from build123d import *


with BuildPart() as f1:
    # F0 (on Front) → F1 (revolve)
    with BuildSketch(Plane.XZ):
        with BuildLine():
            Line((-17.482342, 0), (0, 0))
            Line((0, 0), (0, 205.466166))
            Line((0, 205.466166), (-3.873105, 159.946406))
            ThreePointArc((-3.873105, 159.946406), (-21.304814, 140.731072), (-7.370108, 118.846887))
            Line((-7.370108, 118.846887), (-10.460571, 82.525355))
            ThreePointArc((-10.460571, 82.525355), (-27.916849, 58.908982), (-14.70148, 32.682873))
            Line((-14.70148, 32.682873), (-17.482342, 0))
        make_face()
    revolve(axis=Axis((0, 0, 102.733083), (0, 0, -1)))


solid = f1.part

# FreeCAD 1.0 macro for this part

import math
import FreeCAD as App
import Part
import Sketcher

V = App.Vector

doc = App.newDocument("Part")
body = doc.addObject("PartDesign::Body", "Body")

sketch1 = body.newObject("Sketcher::SketchObject", "Sketch")
sketch1.AttachmentSupport = (doc.getObject("XZ_Plane"), [""])
sketch1.MapMode = "FlatFace"
sketch1.addGeometry([
    Part.LineSegment(V(-17, 0, 0), V(0, 0, 0)),
    Part.LineSegment(V(0, 0, 0), V(0, 205, 0)),
    Part.LineSegment(V(0, 205, 0), V(-4, 160, 0)),
    Part.ArcOfCircle(Part.Circle(V(0, 139, 0), V(0, 0, 1), 21), math.radians(100), math.radians(250)),
    Part.LineSegment(V(-7, 119, 0), V(-10, 83, 0)),
    Part.ArcOfCircle(Part.Circle(V(0, 57, 0), V(0, 0, 1), 28), math.radians(112), math.radians(238)),
    Part.LineSegment(V(-15, 33, 0), V(-17, 0, 0)),
], False)
sketch1.addConstraint([
    Sketcher.Constraint("Coincident", 0, 2, 1, 1),
    Sketcher.Constraint("Coincident", 1, 2, 2, 1),
    Sketcher.Constraint("Coincident", 2, 2, 3, 1),
    Sketcher.Constraint("Coincident", 3, 2, 4, 1),
    Sketcher.Constraint("Coincident", 4, 2, 5, 1),
    Sketcher.Constraint("Coincident", 5, 2, 6, 1),
    Sketcher.Constraint("Coincident", 6, 2, 0, 1),
    Sketcher.Constraint("Horizontal", 0),
    Sketcher.Constraint("Vertical", 1),
    Sketcher.Constraint("Coincident", 0, 2, -1, 1),
    Sketcher.Constraint("PointOnObject", 3, 3, -2),
    Sketcher.Constraint("PointOnObject", 5, 3, -2),
    Sketcher.Constraint("Parallel", 2, 4),
    Sketcher.Constraint("Parallel", 4, 6),
    Sketcher.Constraint("Radius", 5, 28.017721),
    Sketcher.Constraint("Radius", 3, 21.381794),
    Sketcher.Constraint("DistanceX", 0, 1, 0, 2, 17.482342),
    Sketcher.Constraint("DistanceY", 1, 1, 1, 2, 205.466166),
    Sketcher.Constraint("DistanceY", -1, 1, 5, 3, 56.533642),
    Sketcher.Constraint("DistanceX", 3, 2, -1, 1, 7.370108),
    Sketcher.Constraint("DistanceX", 4, 2, -1, 1, 10.460571),
    Sketcher.Constraint("DistanceY", 3, 3, 1, 2, 66.547841),
])
revolution = body.newObject("PartDesign::Revolution", "Revolution")
revolution.Profile = sketch1
revolution.ReferenceAxis = (sketch1, ["V_Axis"])
revolution.Angle = 360

doc.recompute()
